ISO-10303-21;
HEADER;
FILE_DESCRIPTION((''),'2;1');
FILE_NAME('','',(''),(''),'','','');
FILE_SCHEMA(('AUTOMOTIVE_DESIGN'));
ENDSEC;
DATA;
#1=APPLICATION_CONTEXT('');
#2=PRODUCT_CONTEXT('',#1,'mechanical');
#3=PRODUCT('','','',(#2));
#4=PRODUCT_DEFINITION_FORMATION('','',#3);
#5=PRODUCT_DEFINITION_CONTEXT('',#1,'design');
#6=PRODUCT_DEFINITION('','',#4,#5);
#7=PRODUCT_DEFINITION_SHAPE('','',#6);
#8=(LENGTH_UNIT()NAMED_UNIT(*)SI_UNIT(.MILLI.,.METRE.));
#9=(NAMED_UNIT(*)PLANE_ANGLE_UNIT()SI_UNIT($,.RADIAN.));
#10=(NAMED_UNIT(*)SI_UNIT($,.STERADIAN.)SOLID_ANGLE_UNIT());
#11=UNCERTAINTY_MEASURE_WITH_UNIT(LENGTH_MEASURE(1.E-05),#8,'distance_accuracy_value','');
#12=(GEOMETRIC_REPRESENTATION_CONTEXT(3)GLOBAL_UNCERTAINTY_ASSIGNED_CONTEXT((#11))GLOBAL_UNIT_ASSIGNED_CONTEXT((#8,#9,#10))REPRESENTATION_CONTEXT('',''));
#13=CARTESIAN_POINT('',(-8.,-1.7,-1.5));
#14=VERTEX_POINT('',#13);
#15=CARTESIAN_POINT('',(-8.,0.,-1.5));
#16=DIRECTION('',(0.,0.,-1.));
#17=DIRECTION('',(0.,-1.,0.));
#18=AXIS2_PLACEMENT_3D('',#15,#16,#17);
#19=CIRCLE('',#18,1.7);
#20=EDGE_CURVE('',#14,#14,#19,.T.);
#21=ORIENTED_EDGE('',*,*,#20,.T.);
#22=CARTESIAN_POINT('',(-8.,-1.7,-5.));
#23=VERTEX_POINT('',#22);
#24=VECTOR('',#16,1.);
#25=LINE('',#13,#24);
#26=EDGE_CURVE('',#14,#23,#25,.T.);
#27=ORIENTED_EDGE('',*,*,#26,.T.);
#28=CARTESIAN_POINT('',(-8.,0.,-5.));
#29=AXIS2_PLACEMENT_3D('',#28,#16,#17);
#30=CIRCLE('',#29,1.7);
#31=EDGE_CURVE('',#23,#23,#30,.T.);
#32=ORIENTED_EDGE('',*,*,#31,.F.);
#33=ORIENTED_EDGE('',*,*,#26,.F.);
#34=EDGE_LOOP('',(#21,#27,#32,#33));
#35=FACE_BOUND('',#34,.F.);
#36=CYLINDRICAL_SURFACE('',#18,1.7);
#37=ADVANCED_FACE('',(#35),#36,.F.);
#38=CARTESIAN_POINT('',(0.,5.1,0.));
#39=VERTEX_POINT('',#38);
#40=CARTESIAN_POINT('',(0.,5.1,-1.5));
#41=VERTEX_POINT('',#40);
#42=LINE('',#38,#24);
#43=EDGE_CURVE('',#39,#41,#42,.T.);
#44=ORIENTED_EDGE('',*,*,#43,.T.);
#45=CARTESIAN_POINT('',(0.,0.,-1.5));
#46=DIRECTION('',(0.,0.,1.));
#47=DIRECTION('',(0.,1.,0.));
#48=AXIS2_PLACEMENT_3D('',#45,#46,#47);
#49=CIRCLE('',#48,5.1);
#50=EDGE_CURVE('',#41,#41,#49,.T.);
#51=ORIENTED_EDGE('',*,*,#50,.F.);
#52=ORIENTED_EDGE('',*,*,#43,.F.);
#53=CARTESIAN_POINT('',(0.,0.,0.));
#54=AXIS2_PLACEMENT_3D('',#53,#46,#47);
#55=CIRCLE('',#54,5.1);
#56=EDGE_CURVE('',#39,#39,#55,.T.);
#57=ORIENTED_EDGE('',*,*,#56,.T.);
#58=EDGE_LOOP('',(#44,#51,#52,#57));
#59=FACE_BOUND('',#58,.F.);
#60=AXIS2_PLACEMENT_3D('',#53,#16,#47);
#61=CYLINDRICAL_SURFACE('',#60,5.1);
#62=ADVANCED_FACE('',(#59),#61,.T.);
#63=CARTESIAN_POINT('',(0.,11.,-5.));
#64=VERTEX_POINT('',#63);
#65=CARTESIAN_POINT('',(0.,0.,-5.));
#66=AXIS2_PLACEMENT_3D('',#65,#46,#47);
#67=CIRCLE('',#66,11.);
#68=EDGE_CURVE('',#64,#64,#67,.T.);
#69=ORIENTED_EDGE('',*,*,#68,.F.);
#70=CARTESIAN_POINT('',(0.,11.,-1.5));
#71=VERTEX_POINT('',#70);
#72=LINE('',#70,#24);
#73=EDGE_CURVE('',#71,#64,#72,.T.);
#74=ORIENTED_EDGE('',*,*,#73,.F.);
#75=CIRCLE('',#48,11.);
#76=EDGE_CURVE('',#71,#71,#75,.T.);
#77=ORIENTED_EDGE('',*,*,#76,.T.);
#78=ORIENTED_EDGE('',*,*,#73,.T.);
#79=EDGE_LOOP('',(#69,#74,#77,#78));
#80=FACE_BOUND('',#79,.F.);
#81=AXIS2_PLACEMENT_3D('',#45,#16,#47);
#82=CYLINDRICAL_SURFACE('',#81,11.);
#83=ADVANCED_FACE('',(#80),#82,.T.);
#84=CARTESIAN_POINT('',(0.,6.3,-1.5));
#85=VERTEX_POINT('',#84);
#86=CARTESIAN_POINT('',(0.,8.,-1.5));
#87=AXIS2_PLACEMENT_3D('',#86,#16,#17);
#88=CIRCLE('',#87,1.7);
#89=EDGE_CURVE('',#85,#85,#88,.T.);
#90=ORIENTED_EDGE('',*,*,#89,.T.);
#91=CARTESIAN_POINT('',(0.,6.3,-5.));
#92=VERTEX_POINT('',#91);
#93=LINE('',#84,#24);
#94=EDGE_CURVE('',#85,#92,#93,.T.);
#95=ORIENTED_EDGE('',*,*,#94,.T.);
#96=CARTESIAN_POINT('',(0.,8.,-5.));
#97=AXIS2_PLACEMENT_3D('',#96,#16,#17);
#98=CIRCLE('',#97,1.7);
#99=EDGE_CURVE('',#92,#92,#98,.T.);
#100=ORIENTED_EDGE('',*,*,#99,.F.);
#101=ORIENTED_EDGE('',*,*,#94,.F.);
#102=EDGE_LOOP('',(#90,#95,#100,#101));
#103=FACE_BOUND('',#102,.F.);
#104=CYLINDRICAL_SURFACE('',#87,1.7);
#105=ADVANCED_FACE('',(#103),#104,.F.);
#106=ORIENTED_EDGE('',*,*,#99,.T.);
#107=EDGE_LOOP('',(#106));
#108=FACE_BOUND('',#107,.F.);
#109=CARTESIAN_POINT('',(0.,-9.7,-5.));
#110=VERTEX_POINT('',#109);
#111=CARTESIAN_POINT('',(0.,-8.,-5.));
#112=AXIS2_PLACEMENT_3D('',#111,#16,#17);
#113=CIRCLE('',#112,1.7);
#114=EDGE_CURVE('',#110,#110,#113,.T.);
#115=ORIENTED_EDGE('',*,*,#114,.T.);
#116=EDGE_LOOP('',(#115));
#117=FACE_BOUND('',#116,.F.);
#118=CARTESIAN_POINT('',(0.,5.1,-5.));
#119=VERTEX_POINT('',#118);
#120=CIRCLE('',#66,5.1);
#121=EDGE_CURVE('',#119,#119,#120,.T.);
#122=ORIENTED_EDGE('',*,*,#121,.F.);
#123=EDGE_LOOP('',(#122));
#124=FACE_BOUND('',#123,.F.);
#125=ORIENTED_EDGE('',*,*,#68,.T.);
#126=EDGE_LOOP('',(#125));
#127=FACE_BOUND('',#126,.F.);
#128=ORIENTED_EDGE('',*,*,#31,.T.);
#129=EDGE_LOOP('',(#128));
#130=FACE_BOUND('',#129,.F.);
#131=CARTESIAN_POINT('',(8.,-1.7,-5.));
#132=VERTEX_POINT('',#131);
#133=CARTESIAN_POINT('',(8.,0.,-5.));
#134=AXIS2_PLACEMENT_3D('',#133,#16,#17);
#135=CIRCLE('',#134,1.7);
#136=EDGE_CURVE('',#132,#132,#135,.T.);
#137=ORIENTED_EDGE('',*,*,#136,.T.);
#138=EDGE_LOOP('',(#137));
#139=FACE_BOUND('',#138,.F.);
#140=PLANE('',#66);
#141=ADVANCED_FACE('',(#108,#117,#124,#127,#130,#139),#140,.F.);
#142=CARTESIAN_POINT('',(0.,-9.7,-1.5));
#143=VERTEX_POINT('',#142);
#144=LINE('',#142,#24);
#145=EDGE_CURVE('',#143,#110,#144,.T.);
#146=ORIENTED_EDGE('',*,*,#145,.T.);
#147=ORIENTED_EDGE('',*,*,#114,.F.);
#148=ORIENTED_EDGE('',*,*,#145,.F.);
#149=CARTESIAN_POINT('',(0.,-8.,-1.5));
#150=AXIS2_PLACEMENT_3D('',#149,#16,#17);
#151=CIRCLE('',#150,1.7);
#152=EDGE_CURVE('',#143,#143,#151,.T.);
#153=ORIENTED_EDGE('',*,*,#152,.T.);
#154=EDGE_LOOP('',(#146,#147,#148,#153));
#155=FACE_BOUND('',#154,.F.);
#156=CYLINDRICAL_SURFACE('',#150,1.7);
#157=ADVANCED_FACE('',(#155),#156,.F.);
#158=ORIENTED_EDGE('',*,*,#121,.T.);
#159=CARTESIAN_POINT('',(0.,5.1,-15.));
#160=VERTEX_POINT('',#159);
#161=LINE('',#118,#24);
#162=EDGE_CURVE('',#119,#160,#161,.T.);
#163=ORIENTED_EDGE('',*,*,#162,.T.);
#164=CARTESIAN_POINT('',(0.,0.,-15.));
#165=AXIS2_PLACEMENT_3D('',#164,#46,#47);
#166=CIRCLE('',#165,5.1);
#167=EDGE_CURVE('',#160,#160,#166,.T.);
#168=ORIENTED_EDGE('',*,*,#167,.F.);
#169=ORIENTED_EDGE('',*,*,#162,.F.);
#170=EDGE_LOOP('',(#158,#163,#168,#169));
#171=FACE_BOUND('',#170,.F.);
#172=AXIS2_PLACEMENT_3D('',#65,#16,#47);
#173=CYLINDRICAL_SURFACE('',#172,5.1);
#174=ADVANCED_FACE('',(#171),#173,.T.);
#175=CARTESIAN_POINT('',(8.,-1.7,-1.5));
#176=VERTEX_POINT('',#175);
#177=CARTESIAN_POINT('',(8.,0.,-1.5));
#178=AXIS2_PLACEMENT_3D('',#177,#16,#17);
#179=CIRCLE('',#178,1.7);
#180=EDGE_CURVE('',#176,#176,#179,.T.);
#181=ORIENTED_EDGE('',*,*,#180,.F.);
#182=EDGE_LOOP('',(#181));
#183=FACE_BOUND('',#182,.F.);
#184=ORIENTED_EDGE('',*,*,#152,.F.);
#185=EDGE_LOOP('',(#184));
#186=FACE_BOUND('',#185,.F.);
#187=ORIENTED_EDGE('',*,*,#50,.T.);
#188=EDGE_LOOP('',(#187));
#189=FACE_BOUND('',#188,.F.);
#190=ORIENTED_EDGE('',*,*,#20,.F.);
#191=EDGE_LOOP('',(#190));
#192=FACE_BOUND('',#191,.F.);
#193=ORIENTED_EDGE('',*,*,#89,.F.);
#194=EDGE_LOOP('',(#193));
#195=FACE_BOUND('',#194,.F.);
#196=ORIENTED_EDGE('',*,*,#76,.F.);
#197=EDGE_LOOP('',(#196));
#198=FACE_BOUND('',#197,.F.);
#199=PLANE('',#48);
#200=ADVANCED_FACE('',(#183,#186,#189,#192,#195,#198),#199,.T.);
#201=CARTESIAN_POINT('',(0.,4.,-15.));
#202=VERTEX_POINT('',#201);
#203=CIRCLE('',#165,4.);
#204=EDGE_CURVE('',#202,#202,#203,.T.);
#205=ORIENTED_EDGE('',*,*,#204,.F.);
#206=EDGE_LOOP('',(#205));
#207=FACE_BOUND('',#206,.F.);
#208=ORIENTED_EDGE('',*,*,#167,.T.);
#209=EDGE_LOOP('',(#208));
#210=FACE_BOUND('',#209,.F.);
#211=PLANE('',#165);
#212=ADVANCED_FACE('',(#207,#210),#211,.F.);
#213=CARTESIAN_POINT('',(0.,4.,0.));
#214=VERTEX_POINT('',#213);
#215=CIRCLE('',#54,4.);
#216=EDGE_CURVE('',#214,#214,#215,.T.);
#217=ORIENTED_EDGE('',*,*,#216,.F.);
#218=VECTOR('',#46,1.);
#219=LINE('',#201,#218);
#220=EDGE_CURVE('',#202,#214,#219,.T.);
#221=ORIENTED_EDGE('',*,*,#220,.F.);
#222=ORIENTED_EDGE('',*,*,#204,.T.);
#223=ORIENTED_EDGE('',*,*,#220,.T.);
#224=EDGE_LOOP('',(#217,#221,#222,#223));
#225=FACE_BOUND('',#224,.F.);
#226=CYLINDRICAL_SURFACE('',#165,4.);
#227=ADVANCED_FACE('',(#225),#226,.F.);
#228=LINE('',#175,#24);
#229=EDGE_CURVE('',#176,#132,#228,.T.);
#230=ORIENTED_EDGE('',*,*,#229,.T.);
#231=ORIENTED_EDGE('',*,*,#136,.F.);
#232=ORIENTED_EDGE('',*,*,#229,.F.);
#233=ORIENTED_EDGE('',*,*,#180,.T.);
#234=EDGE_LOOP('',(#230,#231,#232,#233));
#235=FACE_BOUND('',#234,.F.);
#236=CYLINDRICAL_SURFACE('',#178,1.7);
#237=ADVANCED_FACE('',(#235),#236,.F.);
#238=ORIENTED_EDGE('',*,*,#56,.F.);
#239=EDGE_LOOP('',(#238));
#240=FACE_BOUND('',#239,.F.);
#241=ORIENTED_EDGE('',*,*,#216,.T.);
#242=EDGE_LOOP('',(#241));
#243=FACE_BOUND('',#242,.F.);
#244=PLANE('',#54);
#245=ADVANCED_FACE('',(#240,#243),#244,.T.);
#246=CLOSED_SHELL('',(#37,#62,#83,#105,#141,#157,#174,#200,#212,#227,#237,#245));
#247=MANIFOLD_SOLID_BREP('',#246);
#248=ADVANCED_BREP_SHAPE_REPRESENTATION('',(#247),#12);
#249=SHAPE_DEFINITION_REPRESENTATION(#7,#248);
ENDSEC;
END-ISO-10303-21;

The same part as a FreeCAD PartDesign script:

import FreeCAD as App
import Part
import Sketcher
Q = App.Units.Quantity


def add_polygon(sketch, points):
    """Adds a closed chain of lines whose ends are joined by coincident constraints."""
    first, n = sketch.GeometryCount, len(points)
    for a, b in zip(points, points[1:] + points[:1]):
        sketch.addGeometry(Part.LineSegment(App.Vector(*a, 0), App.Vector(*b, 0)), False)
    for i in range(n):
        sketch.addConstraint(Sketcher.Constraint("Coincident", first + i, 2, first + (i + 1) % n, 1))

doc = App.newDocument("Part")
body = doc.addObject("PartDesign::Body", "Body")

sketch1 = body.newObject("Sketcher::SketchObject", "Sketch")
sketch1.AttachmentSupport = (doc.getObject("YZ_Plane"), [""])
sketch1.MapMode = "FlatFace"
add_polygon(sketch1, [(5.1, 0), (4, 0), (4, -15), (5.1, -15), (5.1, -5), (11, -5), (11, -1.5), (5.1, -1.5)])
sketch1.addConstraint(Sketcher.Constraint("Horizontal", 0))
sketch1.addConstraint(Sketcher.Constraint("Vertical", 1))
sketch1.addConstraint(Sketcher.Constraint("Horizontal", 2))
sketch1.addConstraint(Sketcher.Constraint("Vertical", 3))
sketch1.addConstraint(Sketcher.Constraint("Horizontal", 4))
sketch1.addConstraint(Sketcher.Constraint("Vertical", 5))
sketch1.addConstraint(Sketcher.Constraint("Horizontal", 6))
sketch1.addConstraint(Sketcher.Constraint("Vertical", 7))
sketch1.addConstraint(Sketcher.Constraint("PointOnObject", 0, 2, -1))
sketch1.addConstraint(Sketcher.Constraint("Vertical", 3, 2, 6, 2))
sketch1.addConstraint(Sketcher.Constraint("DistanceY", 3, 1, 3, 2, Q("10 mm")))
sketch1.addConstraint(Sketcher.Constraint("DistanceY", 5, 1, 5, 2, Q("3.5 mm")))
sketch1.addConstraint(Sketcher.Constraint("DistanceY", 7, 1, 7, 2, Q("1.5 mm")))
sketch1.addConstraint(Sketcher.Constraint("DistanceX", -1, 1, 0, 2, Q("4 mm")))
sketch1.addConstraint(Sketcher.Constraint("DistanceX", -1, 1, 4, 2, Q("11 mm")))
sketch1.addConstraint(Sketcher.Constraint("DistanceX", -1, 1, 2, 2, Q("5.1 mm")))
revolution = body.newObject("PartDesign::Revolution", "Revolution")
revolution.Profile = sketch1
revolution.ReferenceAxis = (sketch1, ["V_Axis"])
revolution.Angle = 360

sketch2 = body.newObject("Sketcher::SketchObject", "Sketch001")
sketch2.AttachmentSupport = (doc.getObject("XY_Plane"), [""])
sketch2.MapMode = "FlatFace"
sketch2.AttachmentOffset = App.Placement(App.Vector(0, 0, -1.5), App.Rotation())
sketch2.addGeometry(Part.Circle(App.Vector(0, 8, 0), App.Vector(0, 0, 1), 1.7), False)
sketch2.addGeometry(Part.Circle(App.Vector(-8, 0, 0), App.Vector(0, 0, 1), 1.7), False)
sketch2.addGeometry(Part.Circle(App.Vector(0, -8, 0), App.Vector(0, 0, 1), 1.7), False)
sketch2.addGeometry(Part.Circle(App.Vector(8, 0, 0), App.Vector(0, 0, 1), 1.7), False)
sketch2.addConstraint(Sketcher.Constraint("Equal", 0, 1))
sketch2.addConstraint(Sketcher.Constraint("Equal", 1, 2))
sketch2.addConstraint(Sketcher.Constraint("Equal", 2, 3))
sketch2.addConstraint(Sketcher.Constraint("Symmetric", 0, 3, 2, 3, -1, 1))
sketch2.addConstraint(Sketcher.Constraint("Symmetric", 1, 3, 3, 3, -1, 1))
sketch2.addConstraint(Sketcher.Constraint("PointOnObject", 0, 3, -2))
sketch2.addConstraint(Sketcher.Constraint("PointOnObject", 1, 3, -1))
sketch2.addConstraint(Sketcher.Constraint("Diameter", 0, Q("3.4 mm")))
sketch2.addConstraint(Sketcher.Constraint("DistanceY", -1, 1, 0, 3, Q("8 mm")))
sketch2.addConstraint(Sketcher.Constraint("DistanceX", 1, 3, -1, 1, Q("8 mm")))
doc.recompute()
hole = body.newObject("PartDesign::Hole", "Hole")
hole.Profile = sketch2
hole.ThreadType = "None"
hole.Diameter = 3.4
hole.DepthType = "ThroughAll"

doc.recompute()
